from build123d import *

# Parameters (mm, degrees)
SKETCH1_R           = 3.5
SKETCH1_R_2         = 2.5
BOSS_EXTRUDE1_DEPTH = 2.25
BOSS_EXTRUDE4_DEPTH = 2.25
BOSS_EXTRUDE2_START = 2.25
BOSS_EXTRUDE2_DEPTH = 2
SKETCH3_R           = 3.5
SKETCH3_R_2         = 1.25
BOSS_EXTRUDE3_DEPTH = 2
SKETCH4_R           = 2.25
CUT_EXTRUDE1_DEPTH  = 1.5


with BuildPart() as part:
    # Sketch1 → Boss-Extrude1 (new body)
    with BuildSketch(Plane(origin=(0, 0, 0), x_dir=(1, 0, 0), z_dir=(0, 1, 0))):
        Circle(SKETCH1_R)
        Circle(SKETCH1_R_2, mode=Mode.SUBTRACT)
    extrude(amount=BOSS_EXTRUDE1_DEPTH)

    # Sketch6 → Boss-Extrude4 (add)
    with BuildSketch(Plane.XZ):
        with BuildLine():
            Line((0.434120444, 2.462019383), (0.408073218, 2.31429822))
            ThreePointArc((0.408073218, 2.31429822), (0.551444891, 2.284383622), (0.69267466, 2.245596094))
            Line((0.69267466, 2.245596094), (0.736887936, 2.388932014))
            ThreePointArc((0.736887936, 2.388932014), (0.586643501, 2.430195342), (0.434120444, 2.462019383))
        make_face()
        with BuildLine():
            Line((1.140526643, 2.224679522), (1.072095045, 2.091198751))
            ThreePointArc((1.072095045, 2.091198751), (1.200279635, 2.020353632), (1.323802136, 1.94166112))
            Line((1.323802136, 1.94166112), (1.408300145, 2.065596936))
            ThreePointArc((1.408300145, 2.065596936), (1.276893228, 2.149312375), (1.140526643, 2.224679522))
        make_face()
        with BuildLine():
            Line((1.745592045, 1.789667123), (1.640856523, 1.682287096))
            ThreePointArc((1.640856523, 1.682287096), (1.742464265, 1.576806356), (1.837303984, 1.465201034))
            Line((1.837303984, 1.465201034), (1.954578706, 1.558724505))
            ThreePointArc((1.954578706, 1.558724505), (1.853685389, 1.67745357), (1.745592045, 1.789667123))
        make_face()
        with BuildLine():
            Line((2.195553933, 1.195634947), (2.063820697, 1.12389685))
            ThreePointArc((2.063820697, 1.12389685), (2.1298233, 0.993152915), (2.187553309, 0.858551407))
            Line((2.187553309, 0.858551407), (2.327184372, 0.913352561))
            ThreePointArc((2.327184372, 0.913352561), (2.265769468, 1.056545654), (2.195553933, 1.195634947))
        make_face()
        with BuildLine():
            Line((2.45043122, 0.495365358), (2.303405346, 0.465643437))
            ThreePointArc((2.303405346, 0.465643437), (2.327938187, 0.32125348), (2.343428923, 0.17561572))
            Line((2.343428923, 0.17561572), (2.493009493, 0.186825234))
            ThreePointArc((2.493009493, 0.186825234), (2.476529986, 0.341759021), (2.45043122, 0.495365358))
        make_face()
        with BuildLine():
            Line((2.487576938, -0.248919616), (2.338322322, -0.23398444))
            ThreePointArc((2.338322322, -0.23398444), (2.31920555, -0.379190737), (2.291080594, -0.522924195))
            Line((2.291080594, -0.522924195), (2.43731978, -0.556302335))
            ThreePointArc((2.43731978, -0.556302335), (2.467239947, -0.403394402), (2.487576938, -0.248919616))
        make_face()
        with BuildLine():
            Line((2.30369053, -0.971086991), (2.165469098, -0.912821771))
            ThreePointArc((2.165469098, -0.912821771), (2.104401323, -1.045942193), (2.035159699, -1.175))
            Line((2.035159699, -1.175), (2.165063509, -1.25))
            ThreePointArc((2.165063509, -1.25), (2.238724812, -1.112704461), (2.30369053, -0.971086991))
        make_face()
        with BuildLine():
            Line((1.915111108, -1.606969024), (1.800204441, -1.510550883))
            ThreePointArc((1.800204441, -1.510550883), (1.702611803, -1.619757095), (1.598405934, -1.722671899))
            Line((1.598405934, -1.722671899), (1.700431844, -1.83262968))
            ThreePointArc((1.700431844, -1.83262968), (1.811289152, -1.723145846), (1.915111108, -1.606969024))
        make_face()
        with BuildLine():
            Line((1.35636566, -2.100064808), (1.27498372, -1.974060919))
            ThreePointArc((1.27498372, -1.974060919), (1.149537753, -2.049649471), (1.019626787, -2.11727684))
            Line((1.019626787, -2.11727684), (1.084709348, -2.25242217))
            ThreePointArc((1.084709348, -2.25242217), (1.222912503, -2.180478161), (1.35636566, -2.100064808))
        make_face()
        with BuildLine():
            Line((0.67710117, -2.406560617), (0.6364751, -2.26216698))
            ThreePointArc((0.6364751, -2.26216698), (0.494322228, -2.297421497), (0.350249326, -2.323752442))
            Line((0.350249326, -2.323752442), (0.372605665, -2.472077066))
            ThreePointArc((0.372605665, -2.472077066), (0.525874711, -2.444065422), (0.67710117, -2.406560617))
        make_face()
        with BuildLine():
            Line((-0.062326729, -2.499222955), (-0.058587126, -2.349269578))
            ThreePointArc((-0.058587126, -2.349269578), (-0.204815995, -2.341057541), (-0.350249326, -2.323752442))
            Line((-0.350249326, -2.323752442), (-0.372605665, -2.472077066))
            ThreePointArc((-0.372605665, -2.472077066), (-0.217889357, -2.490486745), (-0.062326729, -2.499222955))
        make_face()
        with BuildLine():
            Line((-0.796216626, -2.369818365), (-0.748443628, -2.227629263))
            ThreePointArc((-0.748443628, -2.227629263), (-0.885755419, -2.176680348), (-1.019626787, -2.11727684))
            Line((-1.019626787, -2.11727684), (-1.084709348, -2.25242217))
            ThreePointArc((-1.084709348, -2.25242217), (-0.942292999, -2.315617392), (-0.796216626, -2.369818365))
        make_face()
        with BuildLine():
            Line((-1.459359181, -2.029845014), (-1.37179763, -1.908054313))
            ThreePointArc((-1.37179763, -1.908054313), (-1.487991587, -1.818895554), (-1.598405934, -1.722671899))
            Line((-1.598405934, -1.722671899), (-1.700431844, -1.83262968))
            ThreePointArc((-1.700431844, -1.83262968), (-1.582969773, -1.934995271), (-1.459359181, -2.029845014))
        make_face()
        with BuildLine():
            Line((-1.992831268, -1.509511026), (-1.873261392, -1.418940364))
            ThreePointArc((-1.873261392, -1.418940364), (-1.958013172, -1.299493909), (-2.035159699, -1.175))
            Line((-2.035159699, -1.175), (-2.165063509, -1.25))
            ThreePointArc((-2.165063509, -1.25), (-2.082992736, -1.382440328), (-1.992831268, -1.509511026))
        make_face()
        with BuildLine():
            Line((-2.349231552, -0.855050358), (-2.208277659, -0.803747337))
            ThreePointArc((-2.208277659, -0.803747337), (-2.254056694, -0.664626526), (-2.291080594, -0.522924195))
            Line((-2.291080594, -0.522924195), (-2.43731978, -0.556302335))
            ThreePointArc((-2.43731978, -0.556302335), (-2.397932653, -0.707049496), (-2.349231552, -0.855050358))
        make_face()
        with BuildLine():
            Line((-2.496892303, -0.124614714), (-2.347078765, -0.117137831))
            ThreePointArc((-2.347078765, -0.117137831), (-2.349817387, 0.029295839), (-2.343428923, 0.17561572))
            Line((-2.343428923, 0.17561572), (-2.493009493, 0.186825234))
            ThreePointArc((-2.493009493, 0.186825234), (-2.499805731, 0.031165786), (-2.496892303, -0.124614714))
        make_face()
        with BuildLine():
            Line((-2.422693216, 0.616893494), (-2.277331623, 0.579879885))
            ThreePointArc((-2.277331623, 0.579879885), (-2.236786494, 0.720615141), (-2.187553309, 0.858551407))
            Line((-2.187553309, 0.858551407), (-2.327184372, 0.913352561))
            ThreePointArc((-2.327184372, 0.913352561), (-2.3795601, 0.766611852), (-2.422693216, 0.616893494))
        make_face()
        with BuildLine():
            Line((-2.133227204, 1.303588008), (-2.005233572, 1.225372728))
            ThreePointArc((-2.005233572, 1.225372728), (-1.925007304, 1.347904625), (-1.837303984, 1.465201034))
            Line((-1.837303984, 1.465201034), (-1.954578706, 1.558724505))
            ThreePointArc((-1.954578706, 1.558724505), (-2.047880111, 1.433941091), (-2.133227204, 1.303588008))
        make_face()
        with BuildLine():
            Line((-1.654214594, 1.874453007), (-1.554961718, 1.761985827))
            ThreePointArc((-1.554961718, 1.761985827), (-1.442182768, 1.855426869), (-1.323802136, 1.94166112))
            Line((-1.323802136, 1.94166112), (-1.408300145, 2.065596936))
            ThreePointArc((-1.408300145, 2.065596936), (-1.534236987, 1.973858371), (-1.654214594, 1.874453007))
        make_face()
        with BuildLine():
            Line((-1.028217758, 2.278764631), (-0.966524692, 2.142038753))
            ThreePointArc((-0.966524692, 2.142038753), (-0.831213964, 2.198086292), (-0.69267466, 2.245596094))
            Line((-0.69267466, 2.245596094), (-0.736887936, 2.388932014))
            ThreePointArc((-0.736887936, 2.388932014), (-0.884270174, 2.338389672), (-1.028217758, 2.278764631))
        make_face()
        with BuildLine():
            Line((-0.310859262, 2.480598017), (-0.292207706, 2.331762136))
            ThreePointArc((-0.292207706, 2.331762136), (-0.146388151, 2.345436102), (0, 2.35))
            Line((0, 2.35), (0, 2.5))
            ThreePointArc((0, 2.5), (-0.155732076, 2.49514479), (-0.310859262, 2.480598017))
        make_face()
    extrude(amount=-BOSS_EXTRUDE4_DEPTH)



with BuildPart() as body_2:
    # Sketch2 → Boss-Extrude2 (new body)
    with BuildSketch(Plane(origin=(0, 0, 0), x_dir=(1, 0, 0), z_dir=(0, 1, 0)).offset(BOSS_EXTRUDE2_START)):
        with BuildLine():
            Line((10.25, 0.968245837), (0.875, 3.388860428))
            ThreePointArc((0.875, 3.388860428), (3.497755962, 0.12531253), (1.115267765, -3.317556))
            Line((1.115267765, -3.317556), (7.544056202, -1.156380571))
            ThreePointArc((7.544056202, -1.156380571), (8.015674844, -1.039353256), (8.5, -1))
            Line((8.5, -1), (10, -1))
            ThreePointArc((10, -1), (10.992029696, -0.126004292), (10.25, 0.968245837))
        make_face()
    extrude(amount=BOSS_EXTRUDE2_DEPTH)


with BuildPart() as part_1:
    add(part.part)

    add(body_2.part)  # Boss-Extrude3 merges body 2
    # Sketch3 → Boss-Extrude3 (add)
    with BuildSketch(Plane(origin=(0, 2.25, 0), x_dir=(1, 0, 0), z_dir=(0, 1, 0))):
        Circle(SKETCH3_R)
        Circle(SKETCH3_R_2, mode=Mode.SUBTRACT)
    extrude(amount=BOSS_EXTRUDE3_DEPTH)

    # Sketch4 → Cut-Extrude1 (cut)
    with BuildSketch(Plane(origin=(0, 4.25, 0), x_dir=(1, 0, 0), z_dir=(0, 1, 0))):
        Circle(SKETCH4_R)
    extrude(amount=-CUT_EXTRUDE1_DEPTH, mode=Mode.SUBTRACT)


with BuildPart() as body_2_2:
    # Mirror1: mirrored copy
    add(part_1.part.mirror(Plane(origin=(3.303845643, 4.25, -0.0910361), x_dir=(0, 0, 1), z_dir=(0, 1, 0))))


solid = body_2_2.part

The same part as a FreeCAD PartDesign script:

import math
import FreeCAD as App
import Part
import Sketcher

V = App.Vector
Q = App.Units.Quantity

doc = App.newDocument("Part")
body = doc.addObject("PartDesign::Body", "Body")

sketch1 = body.newObject("Sketcher::SketchObject", "Sketch")
sketch1.AttachmentSupport = (doc.getObject("XZ_Plane"), [""])
sketch1.MapMode = "FlatFace"
sketch1.addGeometry(Part.Circle(V(0, 0, 0), V(0, 0, 1), 3.5), False)
sketch1.addGeometry(Part.Circle(V(0, 0, 0), V(0, 0, 1), 2.5), False)
sketch1.addConstraint(Sketcher.Constraint("Coincident", 0, 3, -1, 1))
sketch1.addConstraint(Sketcher.Constraint("Coincident", 1, 3, -1, 1))
sketch1.addConstraint(Sketcher.Constraint("Diameter", 0, Q("7 mm")))
sketch1.addConstraint(Sketcher.Constraint("Diameter", 1, Q("5 mm")))
pad1 = body.newObject("PartDesign::Pad", "Pad")
pad1.Profile = sketch1
pad1.Length = 2.25
pad1.Reversed = True

sketch2 = body.newObject("Sketcher::SketchObject", "Sketch001")
sketch2.AttachmentSupport = (doc.getObject("XZ_Plane"), [""])
sketch2.MapMode = "FlatFace"
sketch2.addGeometry(Part.LineSegment(V(0.43, 2.46, 0), V(0.41, 2.31, 0)), False)
sketch2.addGeometry(Part.ArcOfCircle(Part.Circle(V(0, 0, 0), V(0, 0, 1), 2.35), math.radians(72.86), math.radians(80)), False)
sketch2.addGeometry(Part.LineSegment(V(0.69, 2.25, 0), V(0.74, 2.39, 0)), False)
sketch2.addGeometry(Part.ArcOfCircle(Part.Circle(V(0, 0, 0), V(0, 0, 1), 2.5), math.radians(72.86), math.radians(80)), False)
sketch2.addGeometry(Part.LineSegment(V(1.14, 2.22, 0), V(1.07, 2.09, 0)), False)
sketch2.addGeometry(Part.ArcOfCircle(Part.Circle(V(0, 0, 0), V(0, 0, 1), 2.35), math.radians(55.71), math.radians(62.86)), False)
sketch2.addGeometry(Part.LineSegment(V(1.32, 1.94, 0), V(1.41, 2.07, 0)), False)
sketch2.addGeometry(Part.ArcOfCircle(Part.Circle(V(0, 0, 0), V(0, 0, 1), 2.5), math.radians(55.71), math.radians(62.86)), False)
sketch2.addGeometry(Part.LineSegment(V(1.75, 1.79, 0), V(1.64, 1.68, 0)), False)
sketch2.addGeometry(Part.ArcOfCircle(Part.Circle(V(0, 0, 0), V(0, 0, 1), 2.35), math.radians(38.57), math.radians(45.71)), False)
sketch2.addGeometry(Part.LineSegment(V(1.84, 1.47, 0), V(1.95, 1.56, 0)), False)
sketch2.addGeometry(Part.ArcOfCircle(Part.Circle(V(0, 0, 0), V(0, 0, 1), 2.5), math.radians(38.57), math.radians(45.71)), False)
sketch2.addGeometry(Part.LineSegment(V(2.2, 1.2, 0), V(2.06, 1.12, 0)), False)
sketch2.addGeometry(Part.ArcOfCircle(Part.Circle(V(0, 0, 0), V(0, 0, 1), 2.35), math.radians(21.43), math.radians(28.57)), False)
sketch2.addGeometry(Part.LineSegment(V(2.19, 0.86, 0), V(2.33, 0.91, 0)), False)
sketch2.addGeometry(Part.ArcOfCircle(Part.Circle(V(0, 0, 0), V(0, 0, 1), 2.5), math.radians(21.43), math.radians(28.57)), False)
sketch2.addGeometry(Part.LineSegment(V(2.45, 0.5, 0), V(2.3, 0.47, 0)), False)
sketch2.addGeometry(Part.ArcOfCircle(Part.Circle(V(0, 0, 0), V(0, 0, 1), 2.35), math.radians(4.29), math.radians(11.43)), False)
sketch2.addGeometry(Part.LineSegment(V(2.34, 0.18, 0), V(2.49, 0.19, 0)), False)
sketch2.addGeometry(Part.ArcOfCircle(Part.Circle(V(0, 0, 0), V(0, 0, 1), 2.5), math.radians(4.29), math.radians(11.43)), False)
sketch2.addGeometry(Part.LineSegment(V(2.49, -0.25, 0), V(2.34, -0.23, 0)), False)
sketch2.addGeometry(Part.ArcOfCircle(Part.Circle(V(0, 0, 0), V(0, 0, 1), 2.35), math.radians(-12.86), math.radians(-5.71)), False)
sketch2.addGeometry(Part.LineSegment(V(2.29, -0.52, 0), V(2.44, -0.56, 0)), False)
sketch2.addGeometry(Part.ArcOfCircle(Part.Circle(V(0, 0, 0), V(0, 0, 1), 2.5), math.radians(-12.86), math.radians(-5.71)), False)
sketch2.addGeometry(Part.LineSegment(V(2.3, -0.97, 0), V(2.17, -0.91, 0)), False)
sketch2.addGeometry(Part.ArcOfCircle(Part.Circle(V(0, 0, 0), V(0, 0, 1), 2.35), math.radians(-30), math.radians(-22.86)), False)
sketch2.addGeometry(Part.LineSegment(V(2.04, -1.18, 0), V(2.17, -1.25, 0)), False)
sketch2.addGeometry(Part.ArcOfCircle(Part.Circle(V(0, 0, 0), V(0, 0, 1), 2.5), math.radians(-30), math.radians(-22.86)), False)
sketch2.addGeometry(Part.LineSegment(V(1.92, -1.61, 0), V(1.8, -1.51, 0)), False)
sketch2.addGeometry(Part.ArcOfCircle(Part.Circle(V(0, 0, 0), V(0, 0, 1), 2.35), math.radians(-47.14), math.radians(-40)), False)
sketch2.addGeometry(Part.LineSegment(V(1.6, -1.72, 0), V(1.7, -1.83, 0)), False)
sketch2.addGeometry(Part.ArcOfCircle(Part.Circle(V(0, 0, 0), V(0, 0, 1), 2.5), math.radians(-47.14), math.radians(-40)), False)
sketch2.addGeometry(Part.LineSegment(V(1.36, -2.1, 0), V(1.27, -1.97, 0)), False)
sketch2.addGeometry(Part.ArcOfCircle(Part.Circle(V(0, 0, 0), V(0, 0, 1), 2.35), math.radians(-64.29), math.radians(-57.14)), False)
sketch2.addGeometry(Part.LineSegment(V(1.02, -2.12, 0), V(1.08, -2.25, 0)), False)
sketch2.addGeometry(Part.ArcOfCircle(Part.Circle(V(0, 0, 0), V(0, 0, 1), 2.5), math.radians(-64.29), math.radians(-57.14)), False)
sketch2.addGeometry(Part.LineSegment(V(0.68, -2.41, 0), V(0.64, -2.26, 0)), False)
sketch2.addGeometry(Part.ArcOfCircle(Part.Circle(V(0, 0, 0), V(0, 0, 1), 2.35), math.radians(-81.43), math.radians(-74.29)), False)
sketch2.addGeometry(Part.LineSegment(V(0.35, -2.32, 0), V(0.37, -2.47, 0)), False)
sketch2.addGeometry(Part.ArcOfCircle(Part.Circle(V(0, 0, 0), V(0, 0, 1), 2.5), math.radians(-81.43), math.radians(-74.29)), False)
sketch2.addGeometry(Part.LineSegment(V(-0.06, -2.5, 0), V(-0.06, -2.35, 0)), False)
sketch2.addGeometry(Part.ArcOfCircle(Part.Circle(V(0, 0, 0), V(0, 0, 1), 2.35), math.radians(-98.57), math.radians(-91.43)), False)
sketch2.addGeometry(Part.LineSegment(V(-0.35, -2.32, 0), V(-0.37, -2.47, 0)), False)
sketch2.addGeometry(Part.ArcOfCircle(Part.Circle(V(0, 0, 0), V(0, 0, 1), 2.5), math.radians(-98.57), math.radians(-91.43)), False)
sketch2.addGeometry(Part.LineSegment(V(-0.8, -2.37, 0), V(-0.75, -2.23, 0)), False)
sketch2.addGeometry(Part.ArcOfCircle(Part.Circle(V(0, 0, 0), V(0, 0, 1), 2.35), math.radians(-115.71), math.radians(-108.57)), False)
sketch2.addGeometry(Part.LineSegment(V(-1.02, -2.12, 0), V(-1.08, -2.25, 0)), False)
sketch2.addGeometry(Part.ArcOfCircle(Part.Circle(V(0, 0, 0), V(0, 0, 1), 2.5), math.radians(-115.71), math.radians(-108.57)), False)
sketch2.addGeometry(Part.LineSegment(V(-1.46, -2.03, 0), V(-1.37, -1.91, 0)), False)
sketch2.addGeometry(Part.ArcOfCircle(Part.Circle(V(0, 0, 0), V(0, 0, 1), 2.35), math.radians(-132.86), math.radians(-125.71)), False)
sketch2.addGeometry(Part.LineSegment(V(-1.6, -1.72, 0), V(-1.7, -1.83, 0)), False)
sketch2.addGeometry(Part.ArcOfCircle(Part.Circle(V(0, 0, 0), V(0, 0, 1), 2.5), math.radians(-132.86), math.radians(-125.71)), False)
sketch2.addGeometry(Part.LineSegment(V(-1.99, -1.51, 0), V(-1.87, -1.42, 0)), False)
sketch2.addGeometry(Part.ArcOfCircle(Part.Circle(V(0, 0, 0), V(0, 0, 1), 2.35), math.radians(-150), math.radians(-142.86)), False)
sketch2.addGeometry(Part.LineSegment(V(-2.04, -1.18, 0), V(-2.17, -1.25, 0)), False)
sketch2.addGeometry(Part.ArcOfCircle(Part.Circle(V(0, 0, 0), V(0, 0, 1), 2.5), math.radians(-150), math.radians(-142.86)), False)
sketch2.addGeometry(Part.LineSegment(V(-2.35, -0.86, 0), V(-2.21, -0.8, 0)), False)
sketch2.addGeometry(Part.ArcOfCircle(Part.Circle(V(0, 0, 0), V(0, 0, 1), 2.35), math.radians(-167.14), math.radians(-160)), False)
sketch2.addGeometry(Part.LineSegment(V(-2.29, -0.52, 0), V(-2.44, -0.56, 0)), False)
sketch2.addGeometry(Part.ArcOfCircle(Part.Circle(V(0, 0, 0), V(0, 0, 1), 2.5), math.radians(-167.14), math.radians(-160)), False)
sketch2.addGeometry(Part.LineSegment(V(-2.5, -0.12, 0), V(-2.35, -0.12, 0)), False)
sketch2.addGeometry(Part.ArcOfCircle(Part.Circle(V(0, 0, 0), V(0, 0, 1), 2.35), math.radians(175.71), math.radians(182.86)), False)
sketch2.addGeometry(Part.LineSegment(V(-2.34, 0.18, 0), V(-2.49, 0.19, 0)), False)
sketch2.addGeometry(Part.ArcOfCircle(Part.Circle(V(0, 0, 0), V(0, 0, 1), 2.5), math.radians(175.71), math.radians(182.86)), False)
sketch2.addGeometry(Part.LineSegment(V(-2.42, 0.62, 0), V(-2.28, 0.58, 0)), False)
sketch2.addGeometry(Part.ArcOfCircle(Part.Circle(V(0, 0, 0), V(0, 0, 1), 2.35), math.radians(158.57), math.radians(165.71)), False)
sketch2.addGeometry(Part.LineSegment(V(-2.19, 0.86, 0), V(-2.33, 0.91, 0)), False)
sketch2.addGeometry(Part.ArcOfCircle(Part.Circle(V(0, 0, 0), V(0, 0, 1), 2.5), math.radians(158.57), math.radians(165.71)), False)
sketch2.addGeometry(Part.LineSegment(V(-2.13, 1.3, 0), V(-2.01, 1.23, 0)), False)
sketch2.addGeometry(Part.ArcOfCircle(Part.Circle(V(0, 0, 0), V(0, 0, 1), 2.35), math.radians(141.43), math.radians(148.57)), False)
sketch2.addGeometry(Part.LineSegment(V(-1.84, 1.47, 0), V(-1.95, 1.56, 0)), False)
sketch2.addGeometry(Part.ArcOfCircle(Part.Circle(V(0, 0, 0), V(0, 0, 1), 2.5), math.radians(141.43), math.radians(148.57)), False)
sketch2.addGeometry(Part.LineSegment(V(-1.65, 1.87, 0), V(-1.55, 1.76, 0)), False)
sketch2.addGeometry(Part.ArcOfCircle(Part.Circle(V(0, 0, 0), V(0, 0, 1), 2.35), math.radians(124.29), math.radians(131.43)), False)
sketch2.addGeometry(Part.LineSegment(V(-1.32, 1.94, 0), V(-1.41, 2.07, 0)), False)
sketch2.addGeometry(Part.ArcOfCircle(Part.Circle(V(0, 0, 0), V(0, 0, 1), 2.5), math.radians(124.29), math.radians(131.43)), False)
sketch2.addGeometry(Part.LineSegment(V(-1.03, 2.28, 0), V(-0.97, 2.14, 0)), False)
sketch2.addGeometry(Part.ArcOfCircle(Part.Circle(V(0, 0, 0), V(0, 0, 1), 2.35), math.radians(107.14), math.radians(114.29)), False)
sketch2.addGeometry(Part.LineSegment(V(-0.69, 2.25, 0), V(-0.74, 2.39, 0)), False)
sketch2.addGeometry(Part.ArcOfCircle(Part.Circle(V(0, 0, 0), V(0, 0, 1), 2.5), math.radians(107.14), math.radians(114.29)), False)
sketch2.addGeometry(Part.LineSegment(V(-0.31, 2.48, 0), V(-0.29, 2.33, 0)), False)
sketch2.addGeometry(Part.ArcOfCircle(Part.Circle(V(0, 0, 0), V(0, 0, 1), 2.35), math.radians(90), math.radians(97.14)), False)
sketch2.addGeometry(Part.LineSegment(V(0, 2.35, 0), V(0, 2.5, 0)), False)
sketch2.addGeometry(Part.ArcOfCircle(Part.Circle(V(0, 0, 0), V(0, 0, 1), 2.5), math.radians(90), math.radians(97.14)), False)
sketch2.addConstraint(Sketcher.Constraint("Coincident", 0, 2, 1, 2))
sketch2.addConstraint(Sketcher.Constraint("Coincident", 1, 1, 2, 1))
sketch2.addConstraint(Sketcher.Constraint("Coincident", 2, 2, 3, 1))
sketch2.addConstraint(Sketcher.Constraint("Coincident", 3, 2, 0, 1))
sketch2.addConstraint(Sketcher.Constraint("Coincident", 4, 2, 5, 2))
sketch2.addConstraint(Sketcher.Constraint("Coincident", 5, 1, 6, 1))
sketch2.addConstraint(Sketcher.Constraint("Coincident", 6, 2, 7, 1))
sketch2.addConstraint(Sketcher.Constraint("Coincident", 7, 2, 4, 1))
sketch2.addConstraint(Sketcher.Constraint("Coincident", 8, 2, 9, 2))
sketch2.addConstraint(Sketcher.Constraint("Coincident", 9, 1, 10, 1))
sketch2.addConstraint(Sketcher.Constraint("Coincident", 10, 2, 11, 1))
sketch2.addConstraint(Sketcher.Constraint("Coincident", 11, 2, 8, 1))
sketch2.addConstraint(Sketcher.Constraint("Coincident", 12, 2, 13, 2))
sketch2.addConstraint(Sketcher.Constraint("Coincident", 13, 1, 14, 1))
sketch2.addConstraint(Sketcher.Constraint("Coincident", 14, 2, 15, 1))
sketch2.addConstraint(Sketcher.Constraint("Coincident", 15, 2, 12, 1))
sketch2.addConstraint(Sketcher.Constraint("Coincident", 16, 2, 17, 2))
sketch2.addConstraint(Sketcher.Constraint("Coincident", 17, 1, 18, 1))
sketch2.addConstraint(Sketcher.Constraint("Coincident", 18, 2, 19, 1))
sketch2.addConstraint(Sketcher.Constraint("Coincident", 19, 2, 16, 1))
sketch2.addConstraint(Sketcher.Constraint("Coincident", 20, 2, 21, 2))
sketch2.addConstraint(Sketcher.Constraint("Coincident", 21, 1, 22, 1))
sketch2.addConstraint(Sketcher.Constraint("Coincident", 22, 2, 23, 1))
sketch2.addConstraint(Sketcher.Constraint("Coincident", 23, 2, 20, 1))
sketch2.addConstraint(Sketcher.Constraint("Coincident", 24, 2, 25, 2))
sketch2.addConstraint(Sketcher.Constraint("Coincident", 25, 1, 26, 1))
sketch2.addConstraint(Sketcher.Constraint("Coincident", 26, 2, 27, 1))
sketch2.addConstraint(Sketcher.Constraint("Coincident", 27, 2, 24, 1))
sketch2.addConstraint(Sketcher.Constraint("Coincident", 28, 2, 29, 2))
sketch2.addConstraint(Sketcher.Constraint("Coincident", 29, 1, 30, 1))
sketch2.addConstraint(Sketcher.Constraint("Coincident", 30, 2, 31, 1))
sketch2.addConstraint(Sketcher.Constraint("Coincident", 31, 2, 28, 1))
sketch2.addConstraint(Sketcher.Constraint("Coincident", 32, 2, 33, 2))
sketch2.addConstraint(Sketcher.Constraint("Coincident", 33, 1, 34, 1))
sketch2.addConstraint(Sketcher.Constraint("Coincident", 34, 2, 35, 1))
sketch2.addConstraint(Sketcher.Constraint("Coincident", 35, 2, 32, 1))
sketch2.addConstraint(Sketcher.Constraint("Coincident", 36, 2, 37, 2))
sketch2.addConstraint(Sketcher.Constraint("Coincident", 37, 1, 38, 1))
sketch2.addConstraint(Sketcher.Constraint("Coincident", 38, 2, 39, 1))
sketch2.addConstraint(Sketcher.Constraint("Coincident", 39, 2, 36, 1))
sketch2.addConstraint(Sketcher.Constraint("Coincident", 40, 2, 41, 2))
sketch2.addConstraint(Sketcher.Constraint("Coincident", 41, 1, 42, 1))
sketch2.addConstraint(Sketcher.Constraint("Coincident", 42, 2, 43, 1))
sketch2.addConstraint(Sketcher.Constraint("Coincident", 43, 2, 40, 1))
sketch2.addConstraint(Sketcher.Constraint("Coincident", 44, 2, 45, 2))
sketch2.addConstraint(Sketcher.Constraint("Coincident", 45, 1, 46, 1))
sketch2.addConstraint(Sketcher.Constraint("Coincident", 46, 2, 47, 1))
sketch2.addConstraint(Sketcher.Constraint("Coincident", 47, 2, 44, 1))
sketch2.addConstraint(Sketcher.Constraint("Coincident", 48, 2, 49, 2))
sketch2.addConstraint(Sketcher.Constraint("Coincident", 49, 1, 50, 1))
sketch2.addConstraint(Sketcher.Constraint("Coincident", 50, 2, 51, 1))
sketch2.addConstraint(Sketcher.Constraint("Coincident", 51, 2, 48, 1))
sketch2.addConstraint(Sketcher.Constraint("Coincident", 52, 2, 53, 2))
sketch2.addConstraint(Sketcher.Constraint("Coincident", 53, 1, 54, 1))
sketch2.addConstraint(Sketcher.Constraint("Coincident", 54, 2, 55, 1))
sketch2.addConstraint(Sketcher.Constraint("Coincident", 55, 2, 52, 1))
sketch2.addConstraint(Sketcher.Constraint("Coincident", 56, 2, 57, 2))
sketch2.addConstraint(Sketcher.Constraint("Coincident", 57, 1, 58, 1))
sketch2.addConstraint(Sketcher.Constraint("Coincident", 58, 2, 59, 1))
sketch2.addConstraint(Sketcher.Constraint("Coincident", 59, 2, 56, 1))
sketch2.addConstraint(Sketcher.Constraint("Coincident", 60, 2, 61, 2))
sketch2.addConstraint(Sketcher.Constraint("Coincident", 61, 1, 62, 1))
sketch2.addConstraint(Sketcher.Constraint("Coincident", 62, 2, 63, 1))
sketch2.addConstraint(Sketcher.Constraint("Coincident", 63, 2, 60, 1))
sketch2.addConstraint(Sketcher.Constraint("Coincident", 64, 2, 65, 2))
sketch2.addConstraint(Sketcher.Constraint("Coincident", 65, 1, 66, 1))
sketch2.addConstraint(Sketcher.Constraint("Coincident", 66, 2, 67, 1))
sketch2.addConstraint(Sketcher.Constraint("Coincident", 67, 2, 64, 1))
sketch2.addConstraint(Sketcher.Constraint("Coincident", 68, 2, 69, 2))
sketch2.addConstraint(Sketcher.Constraint("Coincident", 69, 1, 70, 1))
sketch2.addConstraint(Sketcher.Constraint("Coincident", 70, 2, 71, 1))
sketch2.addConstraint(Sketcher.Constraint("Coincident", 71, 2, 68, 1))
sketch2.addConstraint(Sketcher.Constraint("Coincident", 72, 2, 73, 2))
sketch2.addConstraint(Sketcher.Constraint("Coincident", 73, 1, 74, 1))
sketch2.addConstraint(Sketcher.Constraint("Coincident", 74, 2, 75, 1))
sketch2.addConstraint(Sketcher.Constraint("Coincident", 75, 2, 72, 1))
sketch2.addConstraint(Sketcher.Constraint("Coincident", 76, 2, 77, 2))
sketch2.addConstraint(Sketcher.Constraint("Coincident", 77, 1, 78, 1))
sketch2.addConstraint(Sketcher.Constraint("Coincident", 78, 2, 79, 1))
sketch2.addConstraint(Sketcher.Constraint("Coincident", 79, 2, 76, 1))
sketch2.addConstraint(Sketcher.Constraint("Coincident", 80, 2, 81, 2))
sketch2.addConstraint(Sketcher.Constraint("Coincident", 81, 1, 82, 1))
sketch2.addConstraint(Sketcher.Constraint("Coincident", 82, 2, 83, 1))
sketch2.addConstraint(Sketcher.Constraint("Coincident", 83, 2, 80, 1))
sketch2.addConstraint(Sketcher.Constraint("Vertical", 82))
sketch2.addConstraint(Sketcher.Constraint("Coincident", 1, 3, -1, 1))
sketch2.addConstraint(Sketcher.Constraint("Coincident", 3, 3, -1, 1))
sketch2.addConstraint(Sketcher.Constraint("Coincident", 5, 3, -1, 1))
sketch2.addConstraint(Sketcher.Constraint("Coincident", 7, 3, -1, 1))
sketch2.addConstraint(Sketcher.Constraint("Coincident", 9, 3, -1, 1))
sketch2.addConstraint(Sketcher.Constraint("Coincident", 11, 3, -1, 1))
sketch2.addConstraint(Sketcher.Constraint("Coincident", 13, 3, -1, 1))
sketch2.addConstraint(Sketcher.Constraint("Coincident", 15, 3, -1, 1))
sketch2.addConstraint(Sketcher.Constraint("Coincident", 17, 3, -1, 1))
sketch2.addConstraint(Sketcher.Constraint("Coincident", 19, 3, -1, 1))
sketch2.addConstraint(Sketcher.Constraint("Coincident", 21, 3, -1, 1))
sketch2.addConstraint(Sketcher.Constraint("Coincident", 23, 3, -1, 1))
sketch2.addConstraint(Sketcher.Constraint("Coincident", 25, 3, -1, 1))
sketch2.addConstraint(Sketcher.Constraint("Coincident", 27, 3, -1, 1))
sketch2.addConstraint(Sketcher.Constraint("Coincident", 29, 3, -1, 1))
sketch2.addConstraint(Sketcher.Constraint("Coincident", 31, 3, -1, 1))
sketch2.addConstraint(Sketcher.Constraint("Coincident", 33, 3, -1, 1))
sketch2.addConstraint(Sketcher.Constraint("Coincident", 35, 3, -1, 1))
sketch2.addConstraint(Sketcher.Constraint("Coincident", 37, 3, -1, 1))
sketch2.addConstraint(Sketcher.Constraint("Coincident", 39, 3, -1, 1))
sketch2.addConstraint(Sketcher.Constraint("Coincident", 41, 3, -1, 1))
sketch2.addConstraint(Sketcher.Constraint("Coincident", 43, 3, -1, 1))
sketch2.addConstraint(Sketcher.Constraint("Coincident", 45, 3, -1, 1))
sketch2.addConstraint(Sketcher.Constraint("Coincident", 47, 3, -1, 1))
sketch2.addConstraint(Sketcher.Constraint("Coincident", 49, 3, -1, 1))
sketch2.addConstraint(Sketcher.Constraint("Coincident", 51, 3, -1, 1))
sketch2.addConstraint(Sketcher.Constraint("Coincident", 53, 3, -1, 1))
sketch2.addConstraint(Sketcher.Constraint("Coincident", 55, 3, -1, 1))
sketch2.addConstraint(Sketcher.Constraint("Coincident", 57, 3, -1, 1))
sketch2.addConstraint(Sketcher.Constraint("Coincident", 59, 3, -1, 1))
sketch2.addConstraint(Sketcher.Constraint("Coincident", 61, 3, -1, 1))
sketch2.addConstraint(Sketcher.Constraint("Coincident", 63, 3, -1, 1))
sketch2.addConstraint(Sketcher.Constraint("Coincident", 65, 3, -1, 1))
sketch2.addConstraint(Sketcher.Constraint("Coincident", 67, 3, -1, 1))
sketch2.addConstraint(Sketcher.Constraint("Coincident", 69, 3, -1, 1))
sketch2.addConstraint(Sketcher.Constraint("Coincident", 71, 3, -1, 1))
sketch2.addConstraint(Sketcher.Constraint("Coincident", 73, 3, -1, 1))
sketch2.addConstraint(Sketcher.Constraint("Coincident", 75, 3, -1, 1))
sketch2.addConstraint(Sketcher.Constraint("Coincident", 77, 3, -1, 1))
sketch2.addConstraint(Sketcher.Constraint("Coincident", 79, 3, -1, 1))
sketch2.addConstraint(Sketcher.Constraint("Coincident", 81, 3, -1, 1))
sketch2.addConstraint(Sketcher.Constraint("Coincident", 83, 3, -1, 1))
sketch2.addConstraint(Sketcher.Constraint("Equal", 1, 5))
sketch2.addConstraint(Sketcher.Constraint("Equal", 3, 7))
sketch2.addConstraint(Sketcher.Constraint("Equal", 5, 9))
sketch2.addConstraint(Sketcher.Constraint("Equal", 7, 11))
sketch2.addConstraint(Sketcher.Constraint("Equal", 9, 13))
sketch2.addConstraint(Sketcher.Constraint("Equal", 11, 15))
sketch2.addConstraint(Sketcher.Constraint("Equal", 13, 17))
sketch2.addConstraint(Sketcher.Constraint("Equal", 15, 19))
sketch2.addConstraint(Sketcher.Constraint("Equal", 17, 21))
sketch2.addConstraint(Sketcher.Constraint("Equal", 19, 23))
sketch2.addConstraint(Sketcher.Constraint("Equal", 21, 25))
sketch2.addConstraint(Sketcher.Constraint("Equal", 23, 27))
sketch2.addConstraint(Sketcher.Constraint("Equal", 25, 29))
sketch2.addConstraint(Sketcher.Constraint("Equal", 27, 31))
sketch2.addConstraint(Sketcher.Constraint("Equal", 29, 33))
sketch2.addConstraint(Sketcher.Constraint("Equal", 31, 35))
sketch2.addConstraint(Sketcher.Constraint("Equal", 33, 37))
sketch2.addConstraint(Sketcher.Constraint("Equal", 35, 39))
sketch2.addConstraint(Sketcher.Constraint("Equal", 37, 41))
sketch2.addConstraint(Sketcher.Constraint("Equal", 39, 43))
sketch2.addConstraint(Sketcher.Constraint("Equal", 41, 45))
sketch2.addConstraint(Sketcher.Constraint("Equal", 43, 47))
sketch2.addConstraint(Sketcher.Constraint("Equal", 45, 49))
sketch2.addConstraint(Sketcher.Constraint("Equal", 47, 51))
sketch2.addConstraint(Sketcher.Constraint("Equal", 49, 53))
sketch2.addConstraint(Sketcher.Constraint("Equal", 51, 55))
sketch2.addConstraint(Sketcher.Constraint("Equal", 53, 57))
sketch2.addConstraint(Sketcher.Constraint("Equal", 55, 59))
sketch2.addConstraint(Sketcher.Constraint("Equal", 57, 61))
sketch2.addConstraint(Sketcher.Constraint("Equal", 59, 63))
sketch2.addConstraint(Sketcher.Constraint("Equal", 61, 65))
sketch2.addConstraint(Sketcher.Constraint("Equal", 63, 67))
sketch2.addConstraint(Sketcher.Constraint("Equal", 65, 69))
sketch2.addConstraint(Sketcher.Constraint("Equal", 67, 71))
sketch2.addConstraint(Sketcher.Constraint("Equal", 69, 73))
sketch2.addConstraint(Sketcher.Constraint("Equal", 71, 75))
sketch2.addConstraint(Sketcher.Constraint("Equal", 73, 77))
sketch2.addConstraint(Sketcher.Constraint("Equal", 75, 79))
sketch2.addConstraint(Sketcher.Constraint("Equal", 77, 81))
sketch2.addConstraint(Sketcher.Constraint("Equal", 79, 83))
sketch2.addConstraint(Sketcher.Constraint("PointOnObject", 81, 1, -2))
sketch2.addConstraint(Sketcher.Constraint("Horizontal", 37, 1, 41, 1))
sketch2.addConstraint(Sketcher.Constraint("Horizontal", 38, 2, 42, 2))
sketch2.addConstraint(Sketcher.Constraint("Horizontal", 33, 1, 45, 1))
sketch2.addConstraint(Sketcher.Constraint("Horizontal", 34, 2, 46, 2))
sketch2.addConstraint(Sketcher.Constraint("Horizontal", 29, 1, 49, 1))
sketch2.addConstraint(Sketcher.Constraint("Horizontal", 30, 2, 50, 2))
sketch2.addConstraint(Sketcher.Constraint("Horizontal", 25, 1, 53, 1))
sketch2.addConstraint(Sketcher.Constraint("Horizontal", 26, 2, 54, 2))
sketch2.addConstraint(Sketcher.Constraint("Horizontal", 21, 1, 57, 1))
sketch2.addConstraint(Sketcher.Constraint("Horizontal", 22, 2, 58, 2))
sketch2.addConstraint(Sketcher.Constraint("Horizontal", 17, 1, 61, 1))
sketch2.addConstraint(Sketcher.Constraint("Horizontal", 18, 2, 62, 2))
sketch2.addConstraint(Sketcher.Constraint("Horizontal", 13, 1, 65, 1))
sketch2.addConstraint(Sketcher.Constraint("Horizontal", 14, 2, 66, 2))
sketch2.addConstraint(Sketcher.Constraint("Horizontal", 9, 1, 69, 1))
sketch2.addConstraint(Sketcher.Constraint("Horizontal", 10, 2, 70, 2))
sketch2.addConstraint(Sketcher.Constraint("Horizontal", 5, 1, 73, 1))
sketch2.addConstraint(Sketcher.Constraint("Horizontal", 6, 2, 74, 2))
sketch2.addConstraint(Sketcher.Constraint("Horizontal", 1, 1, 77, 1))
sketch2.addConstraint(Sketcher.Constraint("Horizontal", 2, 2, 78, 2))
sketch2.addConstraint(Sketcher.Constraint("Radius", 3, Q("2.5 mm")))
sketch2.addConstraint(Sketcher.Constraint("Angle", 0, Q("-100 deg")))
sketch2.addConstraint(Sketcher.Constraint("Angle", 26, Q("-30 deg")))
sketch2.addConstraint(Sketcher.Constraint("Angle", 28, Q("140 deg")))
sketch2.addConstraint(Sketcher.Constraint("Angle", 56, Q("20 deg")))
sketch2.addConstraint(Sketcher.Constraint("Radius", 1, Q("2.35 mm")))
sketch2.addConstraint(Sketcher.Constraint("DistanceY", 26, 2, -1, 1, Q("1.25 mm")))
sketch2.addConstraint(Sketcher.Constraint("DistanceY", -1, 1, 0, 2, Q("2.314298 mm")))
sketch2.addConstraint(Sketcher.Constraint("DistanceY", -1, 1, 4, 2, Q("2.091199 mm")))
sketch2.addConstraint(Sketcher.Constraint("DistanceX", -1, 1, 6, 2, Q("1.4083 mm")))
sketch2.addConstraint(Sketcher.Constraint("DistanceY", -1, 1, 9, 1, Q("1.465201 mm")))
sketch2.addConstraint(Sketcher.Constraint("DistanceX", -1, 1, 39, 2, Q("0.677101 mm")))
sketch2.addConstraint(Sketcher.Constraint("DistanceY", -1, 1, 83, 2, Q("2.480598 mm")))
sketch2.addConstraint(Sketcher.Constraint("DistanceY", -1, 1, 5, 1, Q("1.941661 mm")))
sketch2.addConstraint(Sketcher.Constraint("DistanceY", -1, 1, 7, 2, Q("2.22468 mm")))
sketch2.addConstraint(Sketcher.Constraint("DistanceX", -1, 1, 10, 2, Q("1.954579 mm")))
sketch2.addConstraint(Sketcher.Constraint("DistanceX", -1, 1, 12, 2, Q("2.063821 mm")))
sketch2.addConstraint(Sketcher.Constraint("DistanceY", -1, 1, 13, 1, Q("0.858551 mm")))
sketch2.addConstraint(Sketcher.Constraint("DistanceX", -1, 1, 17, 1, Q("2.343429 mm")))
sketch2.addConstraint(Sketcher.Constraint("DistanceX", -1, 1, 18, 2, Q("2.493009 mm")))
sketch2.addConstraint(Sketcher.Constraint("DistanceX", -1, 1, 19, 2, Q("2.450431 mm")))
sketch2.addConstraint(Sketcher.Constraint("DistanceX", -1, 1, 21, 1, Q("2.291081 mm")))
sketch2.addConstraint(Sketcher.Constraint("DistanceX", -1, 1, 22, 2, Q("2.43732 mm")))
sketch2.addConstraint(Sketcher.Constraint("DistanceY", 23, 2, -1, 1, Q("0.24892 mm")))
sketch2.addConstraint(Sketcher.Constraint("DistanceX", -1, 1, 24, 2, Q("2.165469 mm")))
sketch2.addConstraint(Sketcher.Constraint("DistanceX", -1, 1, 27, 2, Q("2.303691 mm")))
sketch2.addConstraint(Sketcher.Constraint("DistanceY", 28, 2, -1, 1, Q("1.510551 mm")))
sketch2.addConstraint(Sketcher.Constraint("DistanceY", 29, 1, -1, 1, Q("1.722672 mm")))
sketch2.addConstraint(Sketcher.Constraint("DistanceX", -1, 1, 30, 2, Q("1.700432 mm")))
sketch2.addConstraint(Sketcher.Constraint("DistanceY", 32, 2, -1, 1, Q("1.974061 mm")))
sketch2.addConstraint(Sketcher.Constraint("DistanceX", -1, 1, 34, 2, Q("1.084709 mm")))
sketch2.addConstraint(Sketcher.Constraint("DistanceX", -1, 1, 37, 1, Q("0.350249 mm")))
sketch2.addConstraint(Sketcher.Constraint("DistanceY", 40, 2, -1, 1, Q("2.34927 mm")))
sketch2.addConstraint(Sketcher.Constraint("DistanceY", 44, 2, -1, 1, Q("2.227629 mm")))
sketch2.addConstraint(Sketcher.Constraint("DistanceY", 47, 2, -1, 1, Q("2.369818 mm")))
sketch2.addConstraint(Sketcher.Constraint("DistanceX", 51, 2, -1, 1, Q("1.459359 mm")))
sketch2.addConstraint(Sketcher.Constraint("DistanceX", 52, 2, -1, 1, Q("1.873261 mm")))
sketch2.addConstraint(Sketcher.Constraint("DistanceX", 55, 2, -1, 1, Q("1.992831 mm")))
sketch2.addConstraint(Sketcher.Constraint("DistanceX", 59, 2, -1, 1, Q("2.349232 mm")))
sketch2.addConstraint(Sketcher.Constraint("DistanceX", 60, 2, -1, 1, Q("2.347079 mm")))
sketch2.addConstraint(Sketcher.Constraint("DistanceX", 64, 2, -1, 1, Q("2.277332 mm")))
sketch2.addConstraint(Sketcher.Constraint("DistanceY", -1, 1, 71, 2, Q("1.303588 mm")))
sketch2.addConstraint(Sketcher.Constraint("DistanceX", 72, 2, -1, 1, Q("1.554962 mm")))
sketch2.addConstraint(Sketcher.Constraint("DistanceY", -1, 1, 76, 2, Q("2.142039 mm")))
sketch2.addConstraint(Sketcher.Constraint("DistanceX", -1, 1, 1, 1, Q("0.692675 mm")))
sketch2.addConstraint(Sketcher.Constraint("DistanceX", -1, 1, 2, 2, Q("0.736888 mm")))
sketch2.addConstraint(Sketcher.Constraint("DistanceX", -1, 1, 8, 2, Q("1.640857 mm")))
sketch2.addConstraint(Sketcher.Constraint("DistanceX", -1, 1, 11, 2, Q("1.745592 mm")))
sketch2.addConstraint(Sketcher.Constraint("DistanceX", -1, 1, 14, 2, Q("2.327184 mm")))
sketch2.addConstraint(Sketcher.Constraint("DistanceX", -1, 1, 15, 2, Q("2.195554 mm")))
sketch2.addConstraint(Sketcher.Constraint("DistanceX", -1, 1, 16, 2, Q("2.303405 mm")))
sketch2.addConstraint(Sketcher.Constraint("DistanceX", -1, 1, 20, 2, Q("2.338322 mm")))
sketch2.addConstraint(Sketcher.Constraint("DistanceX", -1, 1, 33, 1, Q("1.019627 mm")))
sketch2.addConstraint(Sketcher.Constraint("DistanceX", -1, 1, 35, 2, Q("1.356366 mm")))
sketch2.addConstraint(Sketcher.Constraint("DistanceX", -1, 1, 36, 2, Q("0.636475 mm")))
sketch2.addConstraint(Sketcher.Constraint("DistanceX", -1, 1, 38, 2, Q("0.372606 mm")))
sketch2.addConstraint(Sketcher.Constraint("DistanceX", 43, 2, -1, 1, Q("0.062327 mm")))
sketch2.addConstraint(Sketcher.Constraint("DistanceX", 48, 2, -1, 1, Q("1.371798 mm")))
sketch2.addConstraint(Sketcher.Constraint("DistanceX", 63, 2, -1, 1, Q("2.496892 mm")))
sketch2.addConstraint(Sketcher.Constraint("DistanceX", 67, 2, -1, 1, Q("2.422693 mm")))
sketch2.addConstraint(Sketcher.Constraint("DistanceX", 68, 2, -1, 1, Q("2.005234 mm")))
sketch2.addConstraint(Sketcher.Constraint("DistanceX", 75, 2, -1, 1, Q("1.654215 mm")))
sketch2.addConstraint(Sketcher.Constraint("DistanceX", 79, 2, -1, 1, Q("1.028218 mm")))
sketch2.addConstraint(Sketcher.Constraint("DistanceX", 80, 2, -1, 1, Q("0.292208 mm")))
pad2 = body.newObject("PartDesign::Pad", "Pad001")
pad2.Profile = sketch2
pad2.Length = 2.25
pad2.Reversed = True
body2 = doc.addObject("PartDesign::Body", "Body001")

sketch3 = body2.newObject("Sketcher::SketchObject", "Sketch002")
sketch3.AttachmentSupport = (doc.getObject("XZ_Plane001"), [""])
sketch3.MapMode = "FlatFace"
sketch3.AttachmentOffset = App.Placement(V(0, 0, -2.25), App.Rotation())
sketch3.addGeometry(Part.LineSegment(V(10.2, -1, 0), V(0.9, -3.4, 0)), False)
sketch3.addGeometry(Part.ArcOfCircle(Part.Circle(V(0, 0, 0), V(0, 0, 1), 3.5), math.radians(-76), math.radians(71)), False)
sketch3.addGeometry(Part.LineSegment(V(1.1, 3.3, 0), V(7.5, 1.2, 0)), False)
sketch3.addGeometry(Part.ArcOfCircle(Part.Circle(V(8.5, 4, 0), V(0, 0, 1), 3), math.radians(-108.58), math.radians(-90)), False)
sketch3.addGeometry(Part.LineSegment(V(8.5, 1, 0), V(10, 1, 0)), False)
sketch3.addGeometry(Part.ArcOfCircle(Part.Circle(V(10, 0, 0), V(0, 0, 1), 1), math.radians(-76), math.radians(90)), False)
sketch3.addConstraint(Sketcher.Constraint("Tangent", 0, 2, 1, 1))
sketch3.addConstraint(Sketcher.Constraint("Tangent", 1, 2, 2, 1))
sketch3.addConstraint(Sketcher.Constraint("Tangent", 2, 2, 3, 1))
sketch3.addConstraint(Sketcher.Constraint("Tangent", 3, 2, 4, 1))
sketch3.addConstraint(Sketcher.Constraint("Tangent", 4, 2, 5, 2))
sketch3.addConstraint(Sketcher.Constraint("Tangent", 5, 1, 0, 1))
sketch3.addConstraint(Sketcher.Constraint("Horizontal", 4))
sketch3.addConstraint(Sketcher.Constraint("Coincident", 1, 3, -1, 1))
sketch3.addConstraint(Sketcher.Constraint("PointOnObject", 5, 3, -1))
sketch3.addConstraint(Sketcher.Constraint("Radius", 3, Q("3 mm")))
sketch3.addConstraint(Sketcher.Constraint("Radius", 5, Q("1 mm")))
sketch3.addConstraint(Sketcher.Constraint("Radius", 1, Q("3.5 mm")))
sketch3.addConstraint(Sketcher.Constraint("DistanceX", 4, 1, 4, 2, Q("1.5 mm")))
sketch3.addConstraint(Sketcher.Constraint("DistanceX", -1, 1, 5, 3, Q("10 mm")))
pad3 = body2.newObject("PartDesign::Pad", "Pad002")
pad3.Profile = sketch3
pad3.Length = 2
pad3.Reversed = True
body.AllowCompound = True
doc.recompute()

boolean = body.newObject("PartDesign::Boolean", "Boolean")
boolean.Type = "Fuse"
boolean.addObjects([body2])

sketch4 = body.newObject("Sketcher::SketchObject", "Sketch003")
sketch4.AttachmentSupport = (doc.getObject("XZ_Plane"), [""])
sketch4.MapMode = "FlatFace"
sketch4.AttachmentOffset = App.Placement(V(0, 0, -2.25), App.Rotation())
sketch4.addGeometry(Part.Circle(V(0, 0, 0), V(0, 0, 1), 3.5), False)
sketch4.addGeometry(Part.Circle(V(0, 0, 0), V(0, 0, 1), 1.2), False)
sketch4.addConstraint(Sketcher.Constraint("Coincident", 0, 3, -1, 1))
sketch4.addConstraint(Sketcher.Constraint("Coincident", 1, 3, -1, 1))
sketch4.addConstraint(Sketcher.Constraint("Diameter", 0, Q("7 mm")))
sketch4.addConstraint(Sketcher.Constraint("Diameter", 1, Q("2.5 mm")))
pad4 = body.newObject("PartDesign::Pad", "Pad003")
pad4.Profile = sketch4
pad4.Length = 2
pad4.Reversed = True

sketch5 = body.newObject("Sketcher::SketchObject", "Sketch004")
sketch5.AttachmentSupport = (doc.getObject("XZ_Plane"), [""])
sketch5.MapMode = "FlatFace"
sketch5.AttachmentOffset = App.Placement(V(0, 0, -4.25), App.Rotation())
sketch5.addGeometry(Part.Circle(V(0, 0, 0), V(0, 0, 1), 2.2), False)
sketch5.addConstraint(Sketcher.Constraint("Coincident", 0, 3, -1, 1))
sketch5.addConstraint(Sketcher.Constraint("Diameter", 0, Q("4.5 mm")))
pocket1 = body.newObject("PartDesign::Pocket", "Pocket")
pocket1.Profile = sketch5
pocket1.Length = 1.5
pocket1.Reversed = True
body3 = doc.addObject("PartDesign::Body", "Body002")
doc.recompute()

mirroring = doc.addObject("Part::Mirroring", "Mirroring")
mirroring.Source = body
mirroring.Base = V(3.303846, 4.25, -0.091036)
mirroring.Normal = V(0, 1, 0)
body3.BaseFeature = mirroring
doc.recompute()
body.Visibility = False
mirroring.Visibility = False

doc.recompute()
